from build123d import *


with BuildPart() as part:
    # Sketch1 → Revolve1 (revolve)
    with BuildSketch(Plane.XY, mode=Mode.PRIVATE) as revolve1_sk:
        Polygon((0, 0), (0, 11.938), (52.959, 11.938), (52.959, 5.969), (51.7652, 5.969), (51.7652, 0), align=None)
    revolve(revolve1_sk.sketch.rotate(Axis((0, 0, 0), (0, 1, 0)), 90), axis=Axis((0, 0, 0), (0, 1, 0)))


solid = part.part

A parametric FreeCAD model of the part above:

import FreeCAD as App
import Part
import Sketcher
from FreeCAD import Vector
Q = App.Units.Quantity

doc = App.newDocument("Part")
body = doc.addObject("PartDesign::Body", "Body")

# Sketch on XY plane
sketch1 = body.newObject("Sketcher::SketchObject", "Sketch")
sketch1.AttachmentSupport = (doc.getObject("XY_Plane"), [""])
sketch1.MapMode = "FlatFace"
sketch1.addGeometry([
    Part.LineSegment(Vector(0, 11.9, 0), Vector(0, 0, 0)),  # 0
    Part.LineSegment(Vector(0, 0, 0), Vector(51.8, 0, 0)),  # 1
    Part.LineSegment(Vector(51.8, 0, 0), Vector(51.8, 6, 0)),  # 2
    Part.LineSegment(Vector(51.8, 6, 0), Vector(53, 6, 0)),  # 3
    Part.LineSegment(Vector(53, 6, 0), Vector(53, 11.9, 0)),  # 4
    Part.LineSegment(Vector(53, 11.9, 0), Vector(0, 11.9, 0)),  # 5
], False)
sketch1.addConstraint([
    Sketcher.Constraint("Coincident", 0, 2, 1, 1),
    Sketcher.Constraint("Coincident", 1, 2, 2, 1),
    Sketcher.Constraint("Coincident", 2, 2, 3, 1),
    Sketcher.Constraint("Coincident", 3, 2, 4, 1),
    Sketcher.Constraint("Coincident", 4, 2, 5, 1),
    Sketcher.Constraint("Coincident", 5, 2, 0, 1),
    Sketcher.Constraint("Vertical", 0),
    Sketcher.Constraint("Horizontal", 1),
    Sketcher.Constraint("Vertical", 2),
    Sketcher.Constraint("Horizontal", 3),
    Sketcher.Constraint("Vertical", 4),
    Sketcher.Constraint("Horizontal", 5),
    Sketcher.Constraint("Coincident", 0, 2, -1, 1),
    Sketcher.Constraint("Equal", 2, 4),
    Sketcher.Constraint("DistanceY", 0, 2, 0, 1, Q("0.47 in")),
    Sketcher.Constraint("DistanceX", 1, 1, 1, 2, Q("2.038 in")),
    Sketcher.Constraint("DistanceX", 3, 1, 3, 2, Q("0.047 in")),
])
revolution = body.newObject("PartDesign::Revolution", "Revolution")
revolution.Profile = sketch1
revolution.ReferenceAxis = (sketch1, ["V_Axis"])
revolution.Angle = 360

doc.recompute()
